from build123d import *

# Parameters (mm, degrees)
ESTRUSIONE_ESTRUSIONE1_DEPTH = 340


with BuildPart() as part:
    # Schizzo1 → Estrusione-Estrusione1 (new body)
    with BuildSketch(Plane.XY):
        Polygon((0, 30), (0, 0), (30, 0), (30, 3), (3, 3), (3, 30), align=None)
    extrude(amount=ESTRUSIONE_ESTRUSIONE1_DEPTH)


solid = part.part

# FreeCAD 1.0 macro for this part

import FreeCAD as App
import Part
import Sketcher
from FreeCAD import Vector
Q = App.Units.Quantity


def add_polygon(sketch, points):
    """Adds a closed chain of lines whose ends are joined by coincident constraints."""
    first, n = sketch.GeometryCount, len(points)
    for a, b in zip(points, points[1:] + points[:1]):
        sketch.addGeometry(Part.LineSegment(App.Vector(*a, 0), App.Vector(*b, 0)), False)
    for i in range(n):
        sketch.addConstraint(Sketcher.Constraint("Coincident", first + i, 2, first + (i + 1) % n, 1))

doc = App.newDocument("Part")
body = doc.addObject("PartDesign::Body", "Body")

sketch1 = body.newObject("Sketcher::SketchObject", "Sketch")
sketch1.AttachmentSupport = (doc.getObject("XY_Plane"), [""])
sketch1.MapMode = "FlatFace"
add_polygon(sketch1, [(0, 30), (0, 0), (30, 0), (30, 3), (3, 3), (3, 30)])
sketch1.addConstraint(Sketcher.Constraint("Vertical", 0))
sketch1.addConstraint(Sketcher.Constraint("Horizontal", 1))
sketch1.addConstraint(Sketcher.Constraint("Vertical", 2))
sketch1.addConstraint(Sketcher.Constraint("Horizontal", 3))
sketch1.addConstraint(Sketcher.Constraint("Vertical", 4))
sketch1.addConstraint(Sketcher.Constraint("Horizontal", 5))
sketch1.addConstraint(Sketcher.Constraint("Coincident", 0, 2, -1, 1))
sketch1.addConstraint(Sketcher.Constraint("Equal", 1, 0))
sketch1.addConstraint(Sketcher.Constraint("Equal", 5, 2))
sketch1.addConstraint(Sketcher.Constraint("DistanceX", 1, 1, 1, 2, Q("30 mm")))
sketch1.addConstraint(Sketcher.Constraint("DistanceX", 3, 2, 3, 1, Q("27 mm")))
pad1 = body.newObject("PartDesign::Pad", "Pad")
pad1.Profile = sketch1
pad1.Length = 340

doc.recompute()
